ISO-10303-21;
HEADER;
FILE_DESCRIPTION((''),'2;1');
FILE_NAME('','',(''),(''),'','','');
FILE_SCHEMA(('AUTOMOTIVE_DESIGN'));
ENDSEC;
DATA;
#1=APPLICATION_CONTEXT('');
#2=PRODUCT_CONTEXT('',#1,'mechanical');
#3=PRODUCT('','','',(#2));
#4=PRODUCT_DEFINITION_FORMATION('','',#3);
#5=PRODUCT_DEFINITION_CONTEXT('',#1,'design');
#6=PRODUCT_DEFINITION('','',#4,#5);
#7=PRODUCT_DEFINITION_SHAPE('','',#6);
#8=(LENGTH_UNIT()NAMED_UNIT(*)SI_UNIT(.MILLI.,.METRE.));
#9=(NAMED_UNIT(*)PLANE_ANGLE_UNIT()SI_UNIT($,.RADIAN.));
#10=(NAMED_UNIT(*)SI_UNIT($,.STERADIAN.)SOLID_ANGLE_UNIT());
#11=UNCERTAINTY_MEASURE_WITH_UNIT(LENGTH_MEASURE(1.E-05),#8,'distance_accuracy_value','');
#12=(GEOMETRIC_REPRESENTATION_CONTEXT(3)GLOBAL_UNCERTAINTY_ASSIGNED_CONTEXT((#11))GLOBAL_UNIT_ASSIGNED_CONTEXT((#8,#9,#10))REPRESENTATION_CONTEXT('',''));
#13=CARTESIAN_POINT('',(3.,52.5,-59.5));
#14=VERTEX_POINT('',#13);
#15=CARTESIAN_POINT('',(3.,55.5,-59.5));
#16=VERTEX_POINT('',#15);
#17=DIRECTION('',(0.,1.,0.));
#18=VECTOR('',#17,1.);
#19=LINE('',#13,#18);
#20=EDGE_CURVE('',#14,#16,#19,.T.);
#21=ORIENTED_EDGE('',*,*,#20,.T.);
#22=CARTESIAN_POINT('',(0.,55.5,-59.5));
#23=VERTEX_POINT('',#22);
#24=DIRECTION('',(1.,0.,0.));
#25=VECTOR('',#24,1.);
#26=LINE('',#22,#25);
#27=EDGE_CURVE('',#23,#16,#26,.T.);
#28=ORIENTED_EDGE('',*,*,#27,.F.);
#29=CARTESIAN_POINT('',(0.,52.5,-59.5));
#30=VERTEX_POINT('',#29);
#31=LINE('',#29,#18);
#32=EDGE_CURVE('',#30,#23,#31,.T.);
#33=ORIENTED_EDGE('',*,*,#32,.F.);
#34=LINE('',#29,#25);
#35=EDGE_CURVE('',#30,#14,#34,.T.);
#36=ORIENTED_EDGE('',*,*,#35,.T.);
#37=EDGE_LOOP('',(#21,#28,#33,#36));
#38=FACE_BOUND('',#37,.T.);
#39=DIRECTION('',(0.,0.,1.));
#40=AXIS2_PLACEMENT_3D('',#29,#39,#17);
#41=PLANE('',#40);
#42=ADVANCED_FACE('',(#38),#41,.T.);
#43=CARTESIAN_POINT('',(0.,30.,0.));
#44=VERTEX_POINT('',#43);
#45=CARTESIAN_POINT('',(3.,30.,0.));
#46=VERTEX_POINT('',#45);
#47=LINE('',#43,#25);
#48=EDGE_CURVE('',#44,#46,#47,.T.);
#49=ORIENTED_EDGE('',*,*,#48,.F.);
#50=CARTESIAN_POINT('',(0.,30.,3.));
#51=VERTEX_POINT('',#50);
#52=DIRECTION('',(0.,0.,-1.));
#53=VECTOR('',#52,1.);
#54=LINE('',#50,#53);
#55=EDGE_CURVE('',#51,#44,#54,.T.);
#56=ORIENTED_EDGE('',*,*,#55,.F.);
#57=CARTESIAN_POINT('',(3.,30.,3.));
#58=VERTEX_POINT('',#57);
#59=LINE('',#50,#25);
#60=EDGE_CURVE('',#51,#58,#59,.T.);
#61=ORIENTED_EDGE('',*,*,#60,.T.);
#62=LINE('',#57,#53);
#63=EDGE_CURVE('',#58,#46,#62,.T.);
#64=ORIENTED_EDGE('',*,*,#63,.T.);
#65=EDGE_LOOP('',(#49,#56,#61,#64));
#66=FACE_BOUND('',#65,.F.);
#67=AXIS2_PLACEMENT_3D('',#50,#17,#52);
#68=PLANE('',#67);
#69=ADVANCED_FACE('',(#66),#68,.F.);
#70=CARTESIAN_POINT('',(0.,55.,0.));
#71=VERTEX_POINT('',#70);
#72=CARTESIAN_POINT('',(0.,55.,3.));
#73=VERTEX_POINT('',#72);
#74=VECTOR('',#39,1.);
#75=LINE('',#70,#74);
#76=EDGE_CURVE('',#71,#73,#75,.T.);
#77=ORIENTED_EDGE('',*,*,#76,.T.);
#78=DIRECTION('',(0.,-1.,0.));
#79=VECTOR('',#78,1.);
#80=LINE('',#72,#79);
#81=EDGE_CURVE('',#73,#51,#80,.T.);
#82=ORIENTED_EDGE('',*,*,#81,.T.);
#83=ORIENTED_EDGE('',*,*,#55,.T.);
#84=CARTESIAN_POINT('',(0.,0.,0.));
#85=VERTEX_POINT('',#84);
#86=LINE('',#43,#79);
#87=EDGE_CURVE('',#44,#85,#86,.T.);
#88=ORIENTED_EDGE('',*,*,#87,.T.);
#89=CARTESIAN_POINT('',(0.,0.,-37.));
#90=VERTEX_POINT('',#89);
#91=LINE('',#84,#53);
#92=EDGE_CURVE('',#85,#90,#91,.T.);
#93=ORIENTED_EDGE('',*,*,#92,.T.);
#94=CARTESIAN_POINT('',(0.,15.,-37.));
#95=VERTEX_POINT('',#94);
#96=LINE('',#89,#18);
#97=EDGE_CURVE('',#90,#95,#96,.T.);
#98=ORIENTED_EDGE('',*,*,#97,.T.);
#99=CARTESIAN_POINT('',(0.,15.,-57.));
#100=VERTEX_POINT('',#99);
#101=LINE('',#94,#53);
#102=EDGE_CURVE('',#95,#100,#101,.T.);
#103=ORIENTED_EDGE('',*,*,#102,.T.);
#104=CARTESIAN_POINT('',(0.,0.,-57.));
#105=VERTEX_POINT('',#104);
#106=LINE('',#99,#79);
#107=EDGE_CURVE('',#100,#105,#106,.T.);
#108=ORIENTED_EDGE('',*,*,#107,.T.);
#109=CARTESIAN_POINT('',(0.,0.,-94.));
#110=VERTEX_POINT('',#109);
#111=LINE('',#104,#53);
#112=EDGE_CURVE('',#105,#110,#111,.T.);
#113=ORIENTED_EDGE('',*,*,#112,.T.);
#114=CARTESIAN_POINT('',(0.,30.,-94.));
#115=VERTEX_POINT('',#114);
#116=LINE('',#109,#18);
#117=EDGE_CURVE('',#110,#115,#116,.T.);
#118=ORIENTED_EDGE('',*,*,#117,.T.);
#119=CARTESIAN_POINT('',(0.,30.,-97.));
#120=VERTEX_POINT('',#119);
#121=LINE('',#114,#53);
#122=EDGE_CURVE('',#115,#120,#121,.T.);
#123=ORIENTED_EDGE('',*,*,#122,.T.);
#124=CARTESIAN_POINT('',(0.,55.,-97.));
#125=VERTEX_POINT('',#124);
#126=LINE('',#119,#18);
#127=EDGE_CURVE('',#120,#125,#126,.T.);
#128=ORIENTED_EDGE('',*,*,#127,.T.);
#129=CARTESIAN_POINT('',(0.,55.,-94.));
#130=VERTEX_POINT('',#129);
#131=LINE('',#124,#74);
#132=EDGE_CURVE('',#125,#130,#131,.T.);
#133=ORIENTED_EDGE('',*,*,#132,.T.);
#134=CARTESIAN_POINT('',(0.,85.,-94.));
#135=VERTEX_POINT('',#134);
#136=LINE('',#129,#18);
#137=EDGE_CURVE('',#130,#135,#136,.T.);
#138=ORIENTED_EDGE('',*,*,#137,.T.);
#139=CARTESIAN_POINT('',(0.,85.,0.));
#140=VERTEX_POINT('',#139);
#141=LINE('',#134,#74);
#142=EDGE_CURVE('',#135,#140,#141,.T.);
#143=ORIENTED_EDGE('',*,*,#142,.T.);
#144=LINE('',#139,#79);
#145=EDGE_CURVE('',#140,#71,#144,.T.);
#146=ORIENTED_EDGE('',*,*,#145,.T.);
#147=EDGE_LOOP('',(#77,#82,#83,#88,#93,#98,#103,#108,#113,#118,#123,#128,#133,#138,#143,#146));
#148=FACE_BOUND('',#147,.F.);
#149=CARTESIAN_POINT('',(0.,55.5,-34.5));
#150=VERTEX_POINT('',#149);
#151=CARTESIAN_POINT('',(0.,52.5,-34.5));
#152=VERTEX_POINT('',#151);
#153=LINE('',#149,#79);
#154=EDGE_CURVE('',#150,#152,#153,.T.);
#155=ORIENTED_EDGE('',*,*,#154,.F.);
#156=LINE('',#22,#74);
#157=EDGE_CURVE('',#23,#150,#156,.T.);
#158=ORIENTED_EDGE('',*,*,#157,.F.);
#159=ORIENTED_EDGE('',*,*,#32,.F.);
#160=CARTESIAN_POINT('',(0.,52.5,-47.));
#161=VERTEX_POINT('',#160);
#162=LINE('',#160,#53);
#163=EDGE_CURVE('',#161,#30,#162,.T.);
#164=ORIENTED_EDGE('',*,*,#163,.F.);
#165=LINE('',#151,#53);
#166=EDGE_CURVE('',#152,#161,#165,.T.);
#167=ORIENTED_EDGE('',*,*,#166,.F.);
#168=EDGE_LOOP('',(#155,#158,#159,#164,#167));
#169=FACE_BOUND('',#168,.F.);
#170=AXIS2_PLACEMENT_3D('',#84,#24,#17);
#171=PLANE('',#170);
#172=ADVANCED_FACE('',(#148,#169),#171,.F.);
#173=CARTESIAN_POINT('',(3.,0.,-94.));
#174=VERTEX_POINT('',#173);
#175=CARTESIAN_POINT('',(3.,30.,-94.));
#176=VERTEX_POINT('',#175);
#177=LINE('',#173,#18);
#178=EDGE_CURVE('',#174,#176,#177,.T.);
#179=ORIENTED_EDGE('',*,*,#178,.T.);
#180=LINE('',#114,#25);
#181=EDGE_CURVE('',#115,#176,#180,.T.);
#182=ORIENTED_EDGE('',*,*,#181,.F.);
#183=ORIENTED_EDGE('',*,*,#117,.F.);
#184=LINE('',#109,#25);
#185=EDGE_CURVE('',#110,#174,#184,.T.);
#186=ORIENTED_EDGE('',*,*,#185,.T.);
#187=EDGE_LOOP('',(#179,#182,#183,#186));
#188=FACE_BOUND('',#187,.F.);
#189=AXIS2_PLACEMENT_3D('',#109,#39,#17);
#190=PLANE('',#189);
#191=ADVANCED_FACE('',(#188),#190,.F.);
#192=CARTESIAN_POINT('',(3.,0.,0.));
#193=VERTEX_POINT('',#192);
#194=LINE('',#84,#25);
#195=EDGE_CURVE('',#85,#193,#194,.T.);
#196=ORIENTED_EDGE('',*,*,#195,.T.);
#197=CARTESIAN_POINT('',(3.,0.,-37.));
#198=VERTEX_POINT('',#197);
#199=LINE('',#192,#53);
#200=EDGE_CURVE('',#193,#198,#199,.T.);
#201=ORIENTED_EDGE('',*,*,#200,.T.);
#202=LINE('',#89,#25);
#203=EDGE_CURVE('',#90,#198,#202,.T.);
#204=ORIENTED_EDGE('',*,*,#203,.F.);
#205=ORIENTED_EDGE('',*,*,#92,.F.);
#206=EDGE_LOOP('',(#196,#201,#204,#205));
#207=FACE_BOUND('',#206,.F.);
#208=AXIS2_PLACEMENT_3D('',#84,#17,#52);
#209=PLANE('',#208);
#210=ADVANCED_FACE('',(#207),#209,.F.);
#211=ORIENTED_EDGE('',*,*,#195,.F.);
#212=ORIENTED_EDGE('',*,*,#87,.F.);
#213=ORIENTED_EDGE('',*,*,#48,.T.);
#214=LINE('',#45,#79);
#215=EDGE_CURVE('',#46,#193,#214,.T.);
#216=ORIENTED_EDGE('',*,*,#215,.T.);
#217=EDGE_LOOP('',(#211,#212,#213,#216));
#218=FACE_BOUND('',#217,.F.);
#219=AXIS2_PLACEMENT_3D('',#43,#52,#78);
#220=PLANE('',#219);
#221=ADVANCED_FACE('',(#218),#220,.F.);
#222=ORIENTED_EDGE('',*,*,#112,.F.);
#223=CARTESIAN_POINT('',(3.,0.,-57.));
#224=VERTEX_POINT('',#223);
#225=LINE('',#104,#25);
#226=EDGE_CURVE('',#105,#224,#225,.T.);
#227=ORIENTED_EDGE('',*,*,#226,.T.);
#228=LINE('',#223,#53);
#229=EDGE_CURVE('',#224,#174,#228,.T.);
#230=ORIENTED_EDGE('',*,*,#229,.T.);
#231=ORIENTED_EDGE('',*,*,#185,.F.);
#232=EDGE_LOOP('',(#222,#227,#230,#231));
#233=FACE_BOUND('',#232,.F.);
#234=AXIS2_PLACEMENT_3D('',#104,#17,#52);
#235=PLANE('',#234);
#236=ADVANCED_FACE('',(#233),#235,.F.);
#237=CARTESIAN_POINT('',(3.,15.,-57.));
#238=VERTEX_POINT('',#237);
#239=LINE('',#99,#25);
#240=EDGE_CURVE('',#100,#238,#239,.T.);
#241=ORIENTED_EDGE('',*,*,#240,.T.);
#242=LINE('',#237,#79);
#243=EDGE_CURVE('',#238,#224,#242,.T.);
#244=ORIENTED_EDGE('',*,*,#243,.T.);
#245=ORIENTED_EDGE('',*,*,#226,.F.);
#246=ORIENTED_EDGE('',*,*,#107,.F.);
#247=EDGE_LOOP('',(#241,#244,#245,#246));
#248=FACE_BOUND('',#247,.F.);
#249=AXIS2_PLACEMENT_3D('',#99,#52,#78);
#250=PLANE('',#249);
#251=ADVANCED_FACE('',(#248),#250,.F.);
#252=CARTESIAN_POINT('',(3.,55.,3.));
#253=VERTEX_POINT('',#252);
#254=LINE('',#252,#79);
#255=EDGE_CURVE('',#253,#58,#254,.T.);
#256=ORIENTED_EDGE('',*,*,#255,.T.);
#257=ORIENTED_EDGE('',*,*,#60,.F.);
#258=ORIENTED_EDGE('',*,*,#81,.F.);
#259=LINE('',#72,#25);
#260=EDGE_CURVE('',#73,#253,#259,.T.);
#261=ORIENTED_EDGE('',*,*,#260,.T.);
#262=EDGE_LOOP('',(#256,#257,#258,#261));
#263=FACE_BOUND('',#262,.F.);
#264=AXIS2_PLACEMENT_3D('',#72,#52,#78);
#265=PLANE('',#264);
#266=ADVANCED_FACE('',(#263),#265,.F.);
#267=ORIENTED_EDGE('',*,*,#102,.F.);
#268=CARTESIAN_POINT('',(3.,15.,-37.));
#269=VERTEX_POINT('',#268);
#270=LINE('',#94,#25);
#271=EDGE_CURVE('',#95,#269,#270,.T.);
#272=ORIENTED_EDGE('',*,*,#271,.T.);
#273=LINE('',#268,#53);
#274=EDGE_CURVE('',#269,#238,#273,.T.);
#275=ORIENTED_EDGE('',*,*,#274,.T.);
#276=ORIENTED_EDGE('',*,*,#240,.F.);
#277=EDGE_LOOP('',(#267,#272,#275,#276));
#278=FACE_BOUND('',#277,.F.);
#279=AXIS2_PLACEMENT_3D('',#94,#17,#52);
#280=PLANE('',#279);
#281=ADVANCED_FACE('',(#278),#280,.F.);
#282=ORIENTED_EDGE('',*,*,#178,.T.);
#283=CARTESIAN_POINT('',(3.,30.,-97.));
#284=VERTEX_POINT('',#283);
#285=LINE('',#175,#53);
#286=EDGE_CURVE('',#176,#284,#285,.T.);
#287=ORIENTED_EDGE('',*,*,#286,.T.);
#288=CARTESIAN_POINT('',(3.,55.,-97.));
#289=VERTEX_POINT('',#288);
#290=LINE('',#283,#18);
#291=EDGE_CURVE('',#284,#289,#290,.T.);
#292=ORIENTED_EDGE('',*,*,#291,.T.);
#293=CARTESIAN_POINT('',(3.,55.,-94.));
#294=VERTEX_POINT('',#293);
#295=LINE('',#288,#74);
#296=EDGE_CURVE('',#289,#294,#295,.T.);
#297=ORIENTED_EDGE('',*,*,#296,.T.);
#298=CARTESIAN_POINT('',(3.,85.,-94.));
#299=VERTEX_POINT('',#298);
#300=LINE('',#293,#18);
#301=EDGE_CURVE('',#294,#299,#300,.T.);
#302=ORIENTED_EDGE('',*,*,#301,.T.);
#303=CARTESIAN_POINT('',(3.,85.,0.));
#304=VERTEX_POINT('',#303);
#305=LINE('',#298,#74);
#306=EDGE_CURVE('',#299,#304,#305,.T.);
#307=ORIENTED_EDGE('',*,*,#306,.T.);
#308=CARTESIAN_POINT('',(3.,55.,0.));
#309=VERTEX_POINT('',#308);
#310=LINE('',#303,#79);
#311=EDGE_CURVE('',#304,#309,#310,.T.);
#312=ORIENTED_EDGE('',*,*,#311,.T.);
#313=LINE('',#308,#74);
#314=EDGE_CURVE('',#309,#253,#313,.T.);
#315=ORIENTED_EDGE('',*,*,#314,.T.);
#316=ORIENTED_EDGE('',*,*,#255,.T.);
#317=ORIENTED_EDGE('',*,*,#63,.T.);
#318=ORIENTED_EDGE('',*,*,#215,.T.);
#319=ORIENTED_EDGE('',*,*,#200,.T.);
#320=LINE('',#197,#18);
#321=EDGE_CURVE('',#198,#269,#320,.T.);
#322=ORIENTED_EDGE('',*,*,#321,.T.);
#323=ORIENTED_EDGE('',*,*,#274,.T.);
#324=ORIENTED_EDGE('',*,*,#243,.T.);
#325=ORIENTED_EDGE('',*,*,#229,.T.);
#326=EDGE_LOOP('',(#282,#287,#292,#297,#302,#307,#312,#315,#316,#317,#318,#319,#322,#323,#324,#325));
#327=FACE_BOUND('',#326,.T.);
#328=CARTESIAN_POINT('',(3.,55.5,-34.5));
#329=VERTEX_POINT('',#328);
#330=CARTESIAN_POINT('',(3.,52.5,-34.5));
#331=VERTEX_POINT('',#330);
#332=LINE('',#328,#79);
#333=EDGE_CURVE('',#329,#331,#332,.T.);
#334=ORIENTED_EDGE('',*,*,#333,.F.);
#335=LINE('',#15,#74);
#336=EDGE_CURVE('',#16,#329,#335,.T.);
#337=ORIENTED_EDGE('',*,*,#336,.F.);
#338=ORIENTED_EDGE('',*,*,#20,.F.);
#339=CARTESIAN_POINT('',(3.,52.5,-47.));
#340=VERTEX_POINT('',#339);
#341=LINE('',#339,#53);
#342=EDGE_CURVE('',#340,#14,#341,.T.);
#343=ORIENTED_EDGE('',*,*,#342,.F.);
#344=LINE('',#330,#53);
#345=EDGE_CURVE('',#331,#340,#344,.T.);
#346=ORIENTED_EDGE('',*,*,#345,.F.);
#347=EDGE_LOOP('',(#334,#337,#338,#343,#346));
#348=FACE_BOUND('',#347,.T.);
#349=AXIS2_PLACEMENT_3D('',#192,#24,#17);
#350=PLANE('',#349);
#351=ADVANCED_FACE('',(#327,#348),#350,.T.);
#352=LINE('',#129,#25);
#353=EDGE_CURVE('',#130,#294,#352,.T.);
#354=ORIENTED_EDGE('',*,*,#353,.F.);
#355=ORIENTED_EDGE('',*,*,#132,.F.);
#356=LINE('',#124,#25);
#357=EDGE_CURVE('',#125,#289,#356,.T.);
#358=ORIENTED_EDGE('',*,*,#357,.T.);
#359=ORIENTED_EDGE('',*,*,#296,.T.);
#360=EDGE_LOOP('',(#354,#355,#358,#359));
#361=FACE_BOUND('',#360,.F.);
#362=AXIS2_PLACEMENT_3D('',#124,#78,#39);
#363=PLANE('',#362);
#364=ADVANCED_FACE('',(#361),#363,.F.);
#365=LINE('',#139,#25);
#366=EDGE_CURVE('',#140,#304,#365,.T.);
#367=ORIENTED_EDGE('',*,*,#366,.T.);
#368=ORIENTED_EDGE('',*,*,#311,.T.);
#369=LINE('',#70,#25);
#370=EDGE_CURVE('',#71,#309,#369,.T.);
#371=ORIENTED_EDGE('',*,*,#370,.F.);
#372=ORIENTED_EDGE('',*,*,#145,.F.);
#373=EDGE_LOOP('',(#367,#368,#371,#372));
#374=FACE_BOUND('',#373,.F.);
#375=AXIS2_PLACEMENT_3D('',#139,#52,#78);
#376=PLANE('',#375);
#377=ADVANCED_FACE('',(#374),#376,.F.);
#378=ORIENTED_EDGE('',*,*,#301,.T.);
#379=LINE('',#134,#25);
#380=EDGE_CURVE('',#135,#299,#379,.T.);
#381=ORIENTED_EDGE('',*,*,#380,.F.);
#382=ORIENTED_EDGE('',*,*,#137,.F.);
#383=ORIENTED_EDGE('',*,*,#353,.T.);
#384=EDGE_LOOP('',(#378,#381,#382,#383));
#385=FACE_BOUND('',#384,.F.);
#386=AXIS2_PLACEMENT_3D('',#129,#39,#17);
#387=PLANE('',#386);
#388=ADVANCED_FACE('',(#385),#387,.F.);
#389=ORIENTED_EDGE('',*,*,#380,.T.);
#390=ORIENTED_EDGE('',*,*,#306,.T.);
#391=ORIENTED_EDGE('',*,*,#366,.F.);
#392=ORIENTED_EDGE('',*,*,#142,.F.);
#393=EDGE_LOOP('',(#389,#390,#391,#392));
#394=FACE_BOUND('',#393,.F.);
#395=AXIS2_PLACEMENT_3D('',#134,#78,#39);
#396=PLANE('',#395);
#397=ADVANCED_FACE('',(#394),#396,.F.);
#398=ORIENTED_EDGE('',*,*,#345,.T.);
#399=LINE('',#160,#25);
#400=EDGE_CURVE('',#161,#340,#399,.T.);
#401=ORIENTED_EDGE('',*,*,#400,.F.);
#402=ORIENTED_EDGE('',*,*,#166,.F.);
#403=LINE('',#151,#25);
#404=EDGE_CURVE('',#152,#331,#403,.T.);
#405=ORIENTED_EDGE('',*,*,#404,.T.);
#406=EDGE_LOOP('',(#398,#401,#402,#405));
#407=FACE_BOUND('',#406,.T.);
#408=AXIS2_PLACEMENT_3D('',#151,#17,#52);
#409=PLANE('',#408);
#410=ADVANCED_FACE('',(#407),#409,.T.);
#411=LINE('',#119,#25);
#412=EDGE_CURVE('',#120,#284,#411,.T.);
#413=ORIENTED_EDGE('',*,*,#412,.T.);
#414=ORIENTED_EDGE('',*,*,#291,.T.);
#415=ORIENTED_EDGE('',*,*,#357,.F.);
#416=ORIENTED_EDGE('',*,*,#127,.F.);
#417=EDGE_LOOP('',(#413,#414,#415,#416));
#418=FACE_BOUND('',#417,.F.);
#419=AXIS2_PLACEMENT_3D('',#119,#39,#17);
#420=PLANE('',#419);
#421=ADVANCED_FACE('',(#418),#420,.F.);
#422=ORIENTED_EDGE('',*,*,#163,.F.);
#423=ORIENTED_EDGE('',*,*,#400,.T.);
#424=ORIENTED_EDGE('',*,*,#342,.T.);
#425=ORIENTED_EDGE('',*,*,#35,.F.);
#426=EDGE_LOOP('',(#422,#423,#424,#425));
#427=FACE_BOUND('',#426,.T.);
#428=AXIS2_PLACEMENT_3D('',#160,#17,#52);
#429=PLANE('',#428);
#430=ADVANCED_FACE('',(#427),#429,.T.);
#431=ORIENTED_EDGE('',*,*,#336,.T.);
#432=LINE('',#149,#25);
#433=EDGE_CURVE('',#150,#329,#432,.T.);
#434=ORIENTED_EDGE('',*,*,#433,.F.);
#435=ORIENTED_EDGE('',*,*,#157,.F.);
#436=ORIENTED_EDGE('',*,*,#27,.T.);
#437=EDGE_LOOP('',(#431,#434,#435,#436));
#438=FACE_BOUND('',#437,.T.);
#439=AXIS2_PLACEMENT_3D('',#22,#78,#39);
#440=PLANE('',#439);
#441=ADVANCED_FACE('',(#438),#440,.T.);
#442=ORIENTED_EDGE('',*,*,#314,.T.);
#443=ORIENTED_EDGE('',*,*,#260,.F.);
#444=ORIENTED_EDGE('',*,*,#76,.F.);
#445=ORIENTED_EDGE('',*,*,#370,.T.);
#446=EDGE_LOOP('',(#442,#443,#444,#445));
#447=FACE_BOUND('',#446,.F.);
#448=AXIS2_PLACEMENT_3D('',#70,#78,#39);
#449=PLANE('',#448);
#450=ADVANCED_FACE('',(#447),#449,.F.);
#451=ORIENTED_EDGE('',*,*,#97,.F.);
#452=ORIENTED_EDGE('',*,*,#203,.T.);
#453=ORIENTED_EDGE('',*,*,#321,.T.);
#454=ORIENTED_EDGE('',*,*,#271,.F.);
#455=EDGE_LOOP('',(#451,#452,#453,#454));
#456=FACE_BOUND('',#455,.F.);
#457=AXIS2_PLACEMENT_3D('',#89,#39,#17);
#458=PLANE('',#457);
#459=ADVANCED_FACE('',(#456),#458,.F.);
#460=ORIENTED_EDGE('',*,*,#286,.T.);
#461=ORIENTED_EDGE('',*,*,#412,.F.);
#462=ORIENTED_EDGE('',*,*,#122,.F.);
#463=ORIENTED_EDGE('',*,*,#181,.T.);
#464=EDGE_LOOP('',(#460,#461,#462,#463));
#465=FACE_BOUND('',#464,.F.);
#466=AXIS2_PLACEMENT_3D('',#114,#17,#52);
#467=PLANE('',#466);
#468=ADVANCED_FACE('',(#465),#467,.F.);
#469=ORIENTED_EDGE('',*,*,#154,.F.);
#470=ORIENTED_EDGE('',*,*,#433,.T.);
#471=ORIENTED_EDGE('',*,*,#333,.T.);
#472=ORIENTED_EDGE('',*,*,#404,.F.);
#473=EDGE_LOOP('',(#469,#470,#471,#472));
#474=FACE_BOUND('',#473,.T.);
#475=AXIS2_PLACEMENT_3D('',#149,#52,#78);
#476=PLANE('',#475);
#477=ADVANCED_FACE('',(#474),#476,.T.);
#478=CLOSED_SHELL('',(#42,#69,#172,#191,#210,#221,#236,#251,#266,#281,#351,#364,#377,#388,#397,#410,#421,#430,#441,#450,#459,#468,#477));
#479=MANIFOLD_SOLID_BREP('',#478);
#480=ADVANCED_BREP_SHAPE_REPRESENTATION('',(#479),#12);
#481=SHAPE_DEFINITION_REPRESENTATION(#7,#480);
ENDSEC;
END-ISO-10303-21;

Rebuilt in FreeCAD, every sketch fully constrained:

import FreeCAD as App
import Part
import Sketcher

V = App.Vector


def add_polygon(sketch, points):
    """Adds a closed chain of lines whose ends are joined by coincident constraints."""
    first, n = sketch.GeometryCount, len(points)
    for a, b in zip(points, points[1:] + points[:1]):
        sketch.addGeometry(Part.LineSegment(App.Vector(*a, 0), App.Vector(*b, 0)), False)
    for i in range(n):
        sketch.addConstraint(Sketcher.Constraint("Coincident", first + i, 2, first + (i + 1) % n, 1))

doc = App.newDocument("Part")
body = doc.addObject("PartDesign::Body", "Body")

sketch1 = doc.addObject("Sketcher::SketchObject", "Sketch")
body.addObject(sketch1)
sketch1.AttachmentSupport = (doc.YZ_Plane, [""])
sketch1.MapMode = "FlatFace"
add_polygon(sketch1, [(0, -57), (0, -94), (30, -94), (30, -97), (55, -97), (55, -94), (85, -94), (85, 0), (55, 0), (55, 3), (30, 3), (30, 0), (0, 0), (0, -37), (15, -37), (15, -57)])
add_polygon(sketch1, [(52.5, -59.5), (52.5, -34.5), (55.5, -34.5), (55.5, -59.5)])
sketch1.addConstraint(Sketcher.Constraint("Vertical", 0))
sketch1.addConstraint(Sketcher.Constraint("Horizontal", 1))
sketch1.addConstraint(Sketcher.Constraint("Vertical", 2))
sketch1.addConstraint(Sketcher.Constraint("Horizontal", 3))
sketch1.addConstraint(Sketcher.Constraint("Vertical", 4))
sketch1.addConstraint(Sketcher.Constraint("Horizontal", 5))
sketch1.addConstraint(Sketcher.Constraint("Vertical", 6))
sketch1.addConstraint(Sketcher.Constraint("Horizontal", 7))
sketch1.addConstraint(Sketcher.Constraint("Vertical", 8))
sketch1.addConstraint(Sketcher.Constraint("Horizontal", 9))
sketch1.addConstraint(Sketcher.Constraint("Vertical", 10))
sketch1.addConstraint(Sketcher.Constraint("Horizontal", 11))
sketch1.addConstraint(Sketcher.Constraint("Vertical", 12))
sketch1.addConstraint(Sketcher.Constraint("Horizontal", 13))
sketch1.addConstraint(Sketcher.Constraint("Vertical", 14))
sketch1.addConstraint(Sketcher.Constraint("Horizontal", 15))
sketch1.addConstraint(Sketcher.Constraint("Vertical", 16))
sketch1.addConstraint(Sketcher.Constraint("Horizontal", 17))
sketch1.addConstraint(Sketcher.Constraint("Vertical", 18))
sketch1.addConstraint(Sketcher.Constraint("Horizontal", 19))
sketch1.addConstraint(Sketcher.Constraint("Coincident", 11, 2, -1, 1))
sketch1.addConstraint(Sketcher.Constraint("PointOnObject", 0, 2, -2))
sketch1.addConstraint(Sketcher.Constraint("PointOnObject", 6, 2, -1))
sketch1.addConstraint(Sketcher.Constraint("Horizontal", 1, 2, 4, 2))
sketch1.addConstraint(Sketcher.Constraint("Vertical", 4, 2, 7, 2))
sketch1.addConstraint(Sketcher.Constraint("Vertical", 2, 2, 9, 2))
sketch1.addConstraint(Sketcher.Constraint("Equal", 1, 5))
sketch1.addConstraint(Sketcher.Constraint("Equal", 19, 2))
sketch1.addConstraint(Sketcher.Constraint("Equal", 4, 8))
sketch1.addConstraint(Sketcher.Constraint("Equal", 0, 12))
sketch1.addConstraint(Sketcher.Constraint("Equal", 9, 16))
sketch1.addConstraint(Sketcher.Constraint("DistanceX", 1, 1, 1, 2, 30.0))
sketch1.addConstraint(Sketcher.Constraint("DistanceX", 3, 1, 3, 2, 25.0))
sketch1.addConstraint(Sketcher.Constraint("DistanceX", 13, 1, 13, 2, 15.0))
sketch1.addConstraint(Sketcher.Constraint("DistanceX", 17, 1, 17, 2, 3.0))
sketch1.addConstraint(Sketcher.Constraint("DistanceY", 0, 2, 0, 1, 37.0))
sketch1.addConstraint(Sketcher.Constraint("DistanceY", 6, 1, 6, 2, 94.0))
sketch1.addConstraint(Sketcher.Constraint("DistanceX", -1, 1, 16, 2, 52.5))
sketch1.addConstraint(Sketcher.Constraint("DistanceY", 16, 2, -1, 1, 34.5))
pad1 = doc.addObject("PartDesign::Pad", "Pad")
body.addObject(pad1)
pad1.Profile = sketch1
pad1.Length = 3

doc.recompute()
